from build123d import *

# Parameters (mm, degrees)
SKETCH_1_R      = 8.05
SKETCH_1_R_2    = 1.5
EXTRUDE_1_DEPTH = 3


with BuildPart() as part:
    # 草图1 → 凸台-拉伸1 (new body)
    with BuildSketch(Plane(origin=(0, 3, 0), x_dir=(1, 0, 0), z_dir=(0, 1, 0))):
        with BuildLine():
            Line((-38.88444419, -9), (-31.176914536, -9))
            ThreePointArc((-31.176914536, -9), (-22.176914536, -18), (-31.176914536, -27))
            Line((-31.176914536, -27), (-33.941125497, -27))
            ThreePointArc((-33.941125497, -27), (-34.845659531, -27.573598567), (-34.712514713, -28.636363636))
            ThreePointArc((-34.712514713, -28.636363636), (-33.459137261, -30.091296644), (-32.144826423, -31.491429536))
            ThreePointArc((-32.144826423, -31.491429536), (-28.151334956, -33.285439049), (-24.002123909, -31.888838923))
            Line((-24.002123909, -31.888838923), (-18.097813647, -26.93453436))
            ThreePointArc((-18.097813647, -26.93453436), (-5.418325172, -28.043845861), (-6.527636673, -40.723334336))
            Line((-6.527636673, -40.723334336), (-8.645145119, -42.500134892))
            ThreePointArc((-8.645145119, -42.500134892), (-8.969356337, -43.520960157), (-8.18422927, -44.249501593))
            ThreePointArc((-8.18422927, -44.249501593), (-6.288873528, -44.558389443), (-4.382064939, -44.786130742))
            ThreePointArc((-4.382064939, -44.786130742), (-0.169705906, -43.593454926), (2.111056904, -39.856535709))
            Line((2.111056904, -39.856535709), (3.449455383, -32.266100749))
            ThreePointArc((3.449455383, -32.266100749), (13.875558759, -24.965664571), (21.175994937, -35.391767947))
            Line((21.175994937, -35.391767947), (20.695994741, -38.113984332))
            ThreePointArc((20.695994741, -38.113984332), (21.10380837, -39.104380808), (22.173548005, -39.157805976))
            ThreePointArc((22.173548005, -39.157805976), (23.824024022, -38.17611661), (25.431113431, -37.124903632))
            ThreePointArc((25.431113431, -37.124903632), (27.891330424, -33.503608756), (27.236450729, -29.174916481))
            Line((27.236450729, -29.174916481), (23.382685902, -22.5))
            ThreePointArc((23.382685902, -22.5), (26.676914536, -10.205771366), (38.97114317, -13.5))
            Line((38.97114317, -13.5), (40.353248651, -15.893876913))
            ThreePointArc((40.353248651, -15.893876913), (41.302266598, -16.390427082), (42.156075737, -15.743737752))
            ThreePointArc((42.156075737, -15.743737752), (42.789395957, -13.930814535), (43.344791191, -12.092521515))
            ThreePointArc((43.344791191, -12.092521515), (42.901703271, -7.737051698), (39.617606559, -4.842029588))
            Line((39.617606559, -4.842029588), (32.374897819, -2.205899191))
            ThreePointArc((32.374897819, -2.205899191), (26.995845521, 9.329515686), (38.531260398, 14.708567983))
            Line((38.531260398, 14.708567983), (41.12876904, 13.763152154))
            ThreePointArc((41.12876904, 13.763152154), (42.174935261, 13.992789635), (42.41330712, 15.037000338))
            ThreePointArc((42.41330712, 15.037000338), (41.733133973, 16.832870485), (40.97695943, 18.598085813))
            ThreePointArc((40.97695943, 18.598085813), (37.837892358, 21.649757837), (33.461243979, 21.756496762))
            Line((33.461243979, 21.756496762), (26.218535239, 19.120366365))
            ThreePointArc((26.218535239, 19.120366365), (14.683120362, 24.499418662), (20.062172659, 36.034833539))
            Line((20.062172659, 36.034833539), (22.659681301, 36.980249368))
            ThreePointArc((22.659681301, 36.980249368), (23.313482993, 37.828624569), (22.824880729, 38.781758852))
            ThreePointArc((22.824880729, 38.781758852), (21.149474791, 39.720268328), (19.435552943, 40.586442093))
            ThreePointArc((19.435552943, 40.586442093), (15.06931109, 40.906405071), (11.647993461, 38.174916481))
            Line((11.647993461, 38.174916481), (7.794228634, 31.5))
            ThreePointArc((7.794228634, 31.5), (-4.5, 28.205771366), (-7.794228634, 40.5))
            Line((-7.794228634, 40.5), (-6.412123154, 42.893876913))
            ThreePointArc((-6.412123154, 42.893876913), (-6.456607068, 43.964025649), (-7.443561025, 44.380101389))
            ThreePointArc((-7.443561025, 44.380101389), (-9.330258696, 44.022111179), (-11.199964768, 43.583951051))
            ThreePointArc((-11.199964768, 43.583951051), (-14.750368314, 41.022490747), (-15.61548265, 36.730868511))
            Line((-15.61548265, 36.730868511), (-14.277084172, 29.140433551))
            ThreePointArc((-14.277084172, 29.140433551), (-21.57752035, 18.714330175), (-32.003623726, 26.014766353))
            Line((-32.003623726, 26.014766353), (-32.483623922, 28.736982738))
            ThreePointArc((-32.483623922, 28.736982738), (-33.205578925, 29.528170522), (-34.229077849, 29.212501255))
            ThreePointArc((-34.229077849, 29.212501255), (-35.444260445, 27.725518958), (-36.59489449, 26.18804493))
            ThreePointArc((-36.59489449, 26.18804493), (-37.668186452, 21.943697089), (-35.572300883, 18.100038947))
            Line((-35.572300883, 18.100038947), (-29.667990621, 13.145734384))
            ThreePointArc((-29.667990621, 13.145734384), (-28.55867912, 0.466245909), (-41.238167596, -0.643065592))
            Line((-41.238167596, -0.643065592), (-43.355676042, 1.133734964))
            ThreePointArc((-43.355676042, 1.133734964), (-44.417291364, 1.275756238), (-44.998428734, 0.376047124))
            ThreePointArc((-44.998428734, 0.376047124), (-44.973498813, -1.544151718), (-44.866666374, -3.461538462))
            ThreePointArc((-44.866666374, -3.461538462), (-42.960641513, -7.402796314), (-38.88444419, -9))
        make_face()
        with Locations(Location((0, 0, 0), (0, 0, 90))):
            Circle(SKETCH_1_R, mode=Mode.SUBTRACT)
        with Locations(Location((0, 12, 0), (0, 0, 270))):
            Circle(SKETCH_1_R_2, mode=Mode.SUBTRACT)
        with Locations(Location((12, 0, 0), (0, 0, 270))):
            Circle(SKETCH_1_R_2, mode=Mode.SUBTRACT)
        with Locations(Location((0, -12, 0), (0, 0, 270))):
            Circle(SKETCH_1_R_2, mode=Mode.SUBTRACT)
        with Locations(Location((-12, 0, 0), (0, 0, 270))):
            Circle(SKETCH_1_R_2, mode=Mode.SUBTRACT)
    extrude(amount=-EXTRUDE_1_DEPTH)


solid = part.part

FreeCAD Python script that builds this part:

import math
import FreeCAD as App
import Part
import Sketcher
from FreeCAD import Vector
Q = App.Units.Quantity

doc = App.newDocument("Part")
body = doc.addObject("PartDesign::Body", "Body")

sketch1 = body.newObject("Sketcher::SketchObject", "Sketch")
sketch1.AttachmentSupport = (doc.getObject("XZ_Plane"), [""])
sketch1.MapMode = "FlatFace"
sketch1.AttachmentOffset = App.Placement(Vector(0, 0, -3), App.Rotation())
sketch1.addGeometry(Part.LineSegment(Vector(-38.9, 9, 0), Vector(-31.2, 9, 0)), False)
sketch1.addGeometry(Part.ArcOfCircle(Part.Circle(Vector(-31.2, 18, 0), Vector(0, 0, 1), 9), math.radians(-90), math.radians(90)), False)
sketch1.addGeometry(Part.LineSegment(Vector(-31.2, 27, 0), Vector(-33.9, 27, 0)), False)
sketch1.addGeometry(Part.ArcOfCircle(Part.Circle(Vector(-33.9, 28, 0), Vector(0, 0, 1), 1), math.radians(140), math.radians(270)), False)
sketch1.addGeometry(Part.ArcOfCircle(Part.Circle(Vector(0, 0, 0), Vector(0, 0, 1), 45), math.radians(135.59), math.radians(140.48)), False)
sketch1.addGeometry(Part.ArcOfCircle(Part.Circle(Vector(-27.9, 27.3, 0), Vector(0, 0, 1), 6), math.radians(50), math.radians(136)), False)
sketch1.addGeometry(Part.LineSegment(Vector(-24, 31.9, 0), Vector(-18.1, 26.9, 0)), False)
sketch1.addGeometry(Part.ArcOfCircle(Part.Circle(Vector(-12.3, 33.8, 0), Vector(0, 0, 1), 9), math.radians(-130), math.radians(50)), False)
sketch1.addGeometry(Part.LineSegment(Vector(-6.5, 40.7, 0), Vector(-8.6, 42.5, 0)), False)
sketch1.addGeometry(Part.ArcOfCircle(Part.Circle(Vector(-8, 43.3, 0), Vector(0, 0, 1), 1), math.radians(100), math.radians(230)), False)
sketch1.addGeometry(Part.ArcOfCircle(Part.Circle(Vector(0, 0, 0), Vector(0, 0, 1), 45), math.radians(95.59), math.radians(100.48)), False)
sketch1.addGeometry(Part.ArcOfCircle(Part.Circle(Vector(-3.8, 38.8, 0), Vector(0, 0, 1), 6), math.radians(10), math.radians(96)), False)
sketch1.addGeometry(Part.LineSegment(Vector(2.1, 39.9, 0), Vector(3.4, 32.3, 0)), False)
sketch1.addGeometry(Part.ArcOfCircle(Part.Circle(Vector(12.3, 33.8, 0), Vector(0, 0, 1), 9), math.radians(-170), math.radians(10)), False)
sketch1.addGeometry(Part.LineSegment(Vector(21.2, 35.4, 0), Vector(20.7, 38.1, 0)), False)
sketch1.addGeometry(Part.ArcOfCircle(Part.Circle(Vector(21.7, 38.3, 0), Vector(0, 0, 1), 1), math.radians(60), math.radians(190)), False)
sketch1.addGeometry(Part.ArcOfCircle(Part.Circle(Vector(0, 0, 0), Vector(0, 0, 1), 45), math.radians(55.59), math.radians(60.48)), False)
sketch1.addGeometry(Part.ArcOfCircle(Part.Circle(Vector(22, 32.2, 0), Vector(0, 0, 1), 6), math.radians(-30), math.radians(56)), False)
sketch1.addGeometry(Part.LineSegment(Vector(27.2, 29.2, 0), Vector(23.4, 22.5, 0)), False)
sketch1.addGeometry(Part.ArcOfCircle(Part.Circle(Vector(31.2, 18, 0), Vector(0, 0, 1), 9), math.radians(150), math.radians(330)), False)
sketch1.addGeometry(Part.LineSegment(Vector(39, 13.5, 0), Vector(40.4, 15.9, 0)), False)
sketch1.addGeometry(Part.ArcOfCircle(Part.Circle(Vector(41.2, 15.4, 0), Vector(0, 0, 1), 1), math.radians(20), math.radians(150)), False)
sketch1.addGeometry(Part.ArcOfCircle(Part.Circle(Vector(0, 0, 0), Vector(0, 0, 1), 45), math.radians(15.59), math.radians(20.48)), False)
sketch1.addGeometry(Part.ArcOfCircle(Part.Circle(Vector(37.6, 10.5, 0), Vector(0, 0, 1), 6), math.radians(-70), math.radians(16)), False)
sketch1.addGeometry(Part.LineSegment(Vector(39.6, 4.8, 0), Vector(32.4, 2.2, 0)), False)
sketch1.addGeometry(Part.ArcOfCircle(Part.Circle(Vector(35.5, -6.3, 0), Vector(0, 0, 1), 9), math.radians(110), math.radians(290)), False)
sketch1.addGeometry(Part.LineSegment(Vector(38.5, -14.7, 0), Vector(41.1, -13.8, 0)), False)
sketch1.addGeometry(Part.ArcOfCircle(Part.Circle(Vector(41.5, -14.7, 0), Vector(0, 0, 1), 1), math.radians(-20), math.radians(110)), False)
sketch1.addGeometry(Part.ArcOfCircle(Part.Circle(Vector(0, 0, 0), Vector(0, 0, 1), 45), math.radians(-24.41), math.radians(-19.52)), False)
sketch1.addGeometry(Part.ArcOfCircle(Part.Circle(Vector(35.5, -16.1, 0), Vector(0, 0, 1), 6), math.radians(-110), math.radians(-24)), False)
sketch1.addGeometry(Part.LineSegment(Vector(33.5, -21.8, 0), Vector(26.2, -19.1, 0)), False)
sketch1.addGeometry(Part.ArcOfCircle(Part.Circle(Vector(23.1, -27.6, 0), Vector(0, 0, 1), 9), math.radians(70), math.radians(250)), False)
sketch1.addGeometry(Part.LineSegment(Vector(20.1, -36, 0), Vector(22.7, -37, 0)), False)
sketch1.addGeometry(Part.ArcOfCircle(Part.Circle(Vector(22.3, -37.9, 0), Vector(0, 0, 1), 1), math.radians(-60), math.radians(70)), False)
sketch1.addGeometry(Part.ArcOfCircle(Part.Circle(Vector(0, 0, 0), Vector(0, 0, 1), 45), math.radians(-64.41), math.radians(-59.52)), False)
sketch1.addGeometry(Part.ArcOfCircle(Part.Circle(Vector(16.8, -35.2, 0), Vector(0, 0, 1), 6), math.radians(-150), math.radians(-64)), False)
sketch1.addGeometry(Part.LineSegment(Vector(11.6, -38.2, 0), Vector(7.8, -31.5, 0)), False)
sketch1.addGeometry(Part.ArcOfCircle(Part.Circle(Vector(0, -36, 0), Vector(0, 0, 1), 9), math.radians(30), math.radians(210)), False)
sketch1.addGeometry(Part.LineSegment(Vector(-7.8, -40.5, 0), Vector(-6.4, -42.9, 0)), False)
sketch1.addGeometry(Part.ArcOfCircle(Part.Circle(Vector(-7.3, -43.4, 0), Vector(0, 0, 1), 1), math.radians(-100), math.radians(30)), False)
sketch1.addGeometry(Part.ArcOfCircle(Part.Circle(Vector(0, 0, 0), Vector(0, 0, 1), 45), math.radians(-104.41), math.radians(-99.52)), False)
sketch1.addGeometry(Part.ArcOfCircle(Part.Circle(Vector(-9.7, -37.8, 0), Vector(0, 0, 1), 6), math.radians(170), math.radians(256)), False)
sketch1.addGeometry(Part.LineSegment(Vector(-15.6, -36.7, 0), Vector(-14.3, -29.1, 0)), False)
sketch1.addGeometry(Part.ArcOfCircle(Part.Circle(Vector(-23.1, -27.6, 0), Vector(0, 0, 1), 9), math.radians(-10), math.radians(170)), False)
sketch1.addGeometry(Part.LineSegment(Vector(-32, -26, 0), Vector(-32.5, -28.7, 0)), False)
sketch1.addGeometry(Part.ArcOfCircle(Part.Circle(Vector(-33.5, -28.6, 0), Vector(0, 0, 1), 1), math.radians(-140), math.radians(-10)), False)
sketch1.addGeometry(Part.ArcOfCircle(Part.Circle(Vector(0, 0, 0), Vector(0, 0, 1), 45), math.radians(-144.41), math.radians(-139.52)), False)
sketch1.addGeometry(Part.ArcOfCircle(Part.Circle(Vector(-31.7, -22.7, 0), Vector(0, 0, 1), 6), math.radians(130), math.radians(216)), False)
sketch1.addGeometry(Part.LineSegment(Vector(-35.6, -18.1, 0), Vector(-29.7, -13.1, 0)), False)
sketch1.addGeometry(Part.ArcOfCircle(Part.Circle(Vector(-35.5, -6.3, 0), Vector(0, 0, 1), 9), math.radians(-50), math.radians(130)), False)
sketch1.addGeometry(Part.LineSegment(Vector(-41.2, 0.6, 0), Vector(-43.4, -1.1, 0)), False)
sketch1.addGeometry(Part.ArcOfCircle(Part.Circle(Vector(-44, -0.4, 0), Vector(0, 0, 1), 1), math.radians(-180), math.radians(-50)), False)
sketch1.addGeometry(Part.ArcOfCircle(Part.Circle(Vector(0, 0, 0), Vector(0, 0, 1), 45), math.radians(175.59), math.radians(180.48)), False)
sketch1.addGeometry(Part.ArcOfCircle(Part.Circle(Vector(-38.9, 3, 0), Vector(0, 0, 1), 6), math.radians(90), math.radians(176)), False)
sketch1.addGeometry(Part.Circle(Vector(0, 12, 0), Vector(0, 0, 1), 1.5), False)
sketch1.addGeometry(Part.Circle(Vector(-12, 0, 0), Vector(0, 0, 1), 1.5), False)
sketch1.addGeometry(Part.Circle(Vector(0, 0, 0), Vector(0, 0, 1), 8.1), False)
sketch1.addGeometry(Part.Circle(Vector(12, 0, 0), Vector(0, 0, 1), 1.5), False)
sketch1.addGeometry(Part.Circle(Vector(0, -12, 0), Vector(0, 0, 1), 1.5), False)
sketch1.addConstraint(Sketcher.Constraint("Tangent", 0, 2, 1, 1))
sketch1.addConstraint(Sketcher.Constraint("Tangent", 1, 2, 2, 1))
sketch1.addConstraint(Sketcher.Constraint("Tangent", 2, 2, 3, 2))
sketch1.addConstraint(Sketcher.Constraint("Tangent", 3, 1, 4, 2))
sketch1.addConstraint(Sketcher.Constraint("Tangent", 4, 1, 5, 2))
sketch1.addConstraint(Sketcher.Constraint("Tangent", 5, 1, 6, 1))
sketch1.addConstraint(Sketcher.Constraint("Tangent", 6, 2, 7, 1))
sketch1.addConstraint(Sketcher.Constraint("Tangent", 7, 2, 8, 1))
sketch1.addConstraint(Sketcher.Constraint("Tangent", 8, 2, 9, 2))
sketch1.addConstraint(Sketcher.Constraint("Tangent", 9, 1, 10, 2))
sketch1.addConstraint(Sketcher.Constraint("Tangent", 10, 1, 11, 2))
sketch1.addConstraint(Sketcher.Constraint("Tangent", 11, 1, 12, 1))
sketch1.addConstraint(Sketcher.Constraint("Tangent", 12, 2, 13, 1))
sketch1.addConstraint(Sketcher.Constraint("Tangent", 13, 2, 14, 1))
sketch1.addConstraint(Sketcher.Constraint("Tangent", 14, 2, 15, 2))
sketch1.addConstraint(Sketcher.Constraint("Tangent", 15, 1, 16, 2))
sketch1.addConstraint(Sketcher.Constraint("Tangent", 16, 1, 17, 2))
sketch1.addConstraint(Sketcher.Constraint("Tangent", 17, 1, 18, 1))
sketch1.addConstraint(Sketcher.Constraint("Tangent", 18, 2, 19, 1))
sketch1.addConstraint(Sketcher.Constraint("Tangent", 19, 2, 20, 1))
sketch1.addConstraint(Sketcher.Constraint("Tangent", 20, 2, 21, 2))
sketch1.addConstraint(Sketcher.Constraint("Tangent", 21, 1, 22, 2))
sketch1.addConstraint(Sketcher.Constraint("Tangent", 22, 1, 23, 2))
sketch1.addConstraint(Sketcher.Constraint("Tangent", 23, 1, 24, 1))
sketch1.addConstraint(Sketcher.Constraint("Tangent", 24, 2, 25, 1))
sketch1.addConstraint(Sketcher.Constraint("Tangent", 25, 2, 26, 1))
sketch1.addConstraint(Sketcher.Constraint("Tangent", 26, 2, 27, 2))
sketch1.addConstraint(Sketcher.Constraint("Tangent", 27, 1, 28, 2))
sketch1.addConstraint(Sketcher.Constraint("Tangent", 28, 1, 29, 2))
sketch1.addConstraint(Sketcher.Constraint("Tangent", 29, 1, 30, 1))
sketch1.addConstraint(Sketcher.Constraint("Tangent", 30, 2, 31, 1))
sketch1.addConstraint(Sketcher.Constraint("Tangent", 31, 2, 32, 1))
sketch1.addConstraint(Sketcher.Constraint("Tangent", 32, 2, 33, 2))
sketch1.addConstraint(Sketcher.Constraint("Tangent", 33, 1, 34, 2))
sketch1.addConstraint(Sketcher.Constraint("Tangent", 34, 1, 35, 2))
sketch1.addConstraint(Sketcher.Constraint("Tangent", 35, 1, 36, 1))
sketch1.addConstraint(Sketcher.Constraint("Tangent", 36, 2, 37, 1))
sketch1.addConstraint(Sketcher.Constraint("Tangent", 37, 2, 38, 1))
sketch1.addConstraint(Sketcher.Constraint("Tangent", 38, 2, 39, 2))
sketch1.addConstraint(Sketcher.Constraint("Tangent", 39, 1, 40, 2))
sketch1.addConstraint(Sketcher.Constraint("Tangent", 40, 1, 41, 2))
sketch1.addConstraint(Sketcher.Constraint("Tangent", 41, 1, 42, 1))
sketch1.addConstraint(Sketcher.Constraint("Tangent", 42, 2, 43, 1))
sketch1.addConstraint(Sketcher.Constraint("Tangent", 43, 2, 44, 1))
sketch1.addConstraint(Sketcher.Constraint("Tangent", 44, 2, 45, 2))
sketch1.addConstraint(Sketcher.Constraint("Tangent", 45, 1, 46, 2))
sketch1.addConstraint(Sketcher.Constraint("Tangent", 46, 1, 47, 2))
sketch1.addConstraint(Sketcher.Constraint("Tangent", 47, 1, 48, 1))
sketch1.addConstraint(Sketcher.Constraint("Tangent", 48, 2, 49, 1))
sketch1.addConstraint(Sketcher.Constraint("Tangent", 49, 2, 50, 1))
sketch1.addConstraint(Sketcher.Constraint("Tangent", 50, 2, 51, 2))
sketch1.addConstraint(Sketcher.Constraint("Tangent", 51, 1, 52, 2))
sketch1.addConstraint(Sketcher.Constraint("Tangent", 52, 1, 53, 2))
sketch1.addConstraint(Sketcher.Constraint("Tangent", 53, 1, 0, 1))
sketch1.addConstraint(Sketcher.Constraint("Horizontal", 0))
sketch1.addConstraint(Sketcher.Constraint("Horizontal", 2))
sketch1.addConstraint(Sketcher.Constraint("Coincident", 4, 3, -1, 1))
sketch1.addConstraint(Sketcher.Constraint("Coincident", 10, 3, -1, 1))
sketch1.addConstraint(Sketcher.Constraint("Coincident", 16, 3, -1, 1))
sketch1.addConstraint(Sketcher.Constraint("Coincident", 22, 3, -1, 1))
sketch1.addConstraint(Sketcher.Constraint("Coincident", 28, 3, -1, 1))
sketch1.addConstraint(Sketcher.Constraint("Coincident", 34, 3, -1, 1))
sketch1.addConstraint(Sketcher.Constraint("Coincident", 40, 3, -1, 1))
sketch1.addConstraint(Sketcher.Constraint("Coincident", 46, 3, -1, 1))
sketch1.addConstraint(Sketcher.Constraint("Coincident", 52, 3, -1, 1))
sketch1.addConstraint(Sketcher.Constraint("Coincident", 56, 3, -1, 1))
sketch1.addConstraint(Sketcher.Constraint("Equal", 1, 7))
sketch1.addConstraint(Sketcher.Constraint("Equal", 3, 9))
sketch1.addConstraint(Sketcher.Constraint("Equal", 4, 10))
sketch1.addConstraint(Sketcher.Constraint("Equal", 5, 11))
sketch1.addConstraint(Sketcher.Constraint("Equal", 7, 13))
sketch1.addConstraint(Sketcher.Constraint("Equal", 9, 15))
sketch1.addConstraint(Sketcher.Constraint("Equal", 10, 16))
sketch1.addConstraint(Sketcher.Constraint("Equal", 11, 17))
sketch1.addConstraint(Sketcher.Constraint("Equal", 13, 19))
sketch1.addConstraint(Sketcher.Constraint("Equal", 15, 21))
sketch1.addConstraint(Sketcher.Constraint("Equal", 16, 22))
sketch1.addConstraint(Sketcher.Constraint("Equal", 17, 23))
sketch1.addConstraint(Sketcher.Constraint("Equal", 19, 25))
sketch1.addConstraint(Sketcher.Constraint("Equal", 21, 27))
sketch1.addConstraint(Sketcher.Constraint("Equal", 22, 28))
sketch1.addConstraint(Sketcher.Constraint("Equal", 23, 29))
sketch1.addConstraint(Sketcher.Constraint("Equal", 25, 31))
sketch1.addConstraint(Sketcher.Constraint("Equal", 27, 33))
sketch1.addConstraint(Sketcher.Constraint("Equal", 28, 34))
sketch1.addConstraint(Sketcher.Constraint("Equal", 29, 35))
sketch1.addConstraint(Sketcher.Constraint("Equal", 31, 37))
sketch1.addConstraint(Sketcher.Constraint("Equal", 33, 39))
sketch1.addConstraint(Sketcher.Constraint("Equal", 34, 40))
sketch1.addConstraint(Sketcher.Constraint("Equal", 35, 41))
sketch1.addConstraint(Sketcher.Constraint("Equal", 37, 43))
sketch1.addConstraint(Sketcher.Constraint("Equal", 39, 45))
sketch1.addConstraint(Sketcher.Constraint("Equal", 40, 46))
sketch1.addConstraint(Sketcher.Constraint("Equal", 41, 47))
sketch1.addConstraint(Sketcher.Constraint("Equal", 43, 49))
sketch1.addConstraint(Sketcher.Constraint("Equal", 45, 51))
sketch1.addConstraint(Sketcher.Constraint("Equal", 46, 52))
sketch1.addConstraint(Sketcher.Constraint("Equal", 47, 53))
sketch1.addConstraint(Sketcher.Constraint("Equal", 54, 55))
sketch1.addConstraint(Sketcher.Constraint("Equal", 55, 57))
sketch1.addConstraint(Sketcher.Constraint("Equal", 57, 58))
sketch1.addConstraint(Sketcher.Constraint("Symmetric", 55, 3, 57, 3, -1, 1))
sketch1.addConstraint(Sketcher.Constraint("Symmetric", 54, 3, 58, 3, -1, 1))
sketch1.addConstraint(Sketcher.Constraint("Symmetric", 7, 3, 13, 3, -2))
sketch1.addConstraint(Sketcher.Constraint("Symmetric", 1, 3, 19, 3, -2))
sketch1.addConstraint(Sketcher.Constraint("Symmetric", 31, 3, 43, 3, -2))
sketch1.addConstraint(Sketcher.Constraint("Symmetric", 25, 3, 49, 3, -2))
sketch1.addConstraint(Sketcher.Constraint("PointOnObject", 37, 3, -2))
sketch1.addConstraint(Sketcher.Constraint("PointOnObject", 54, 3, -2))
sketch1.addConstraint(Sketcher.Constraint("PointOnObject", 55, 3, -1))
sketch1.addConstraint(Sketcher.Constraint("Parallel", 6, 8))
sketch1.addConstraint(Sketcher.Constraint("Parallel", 12, 14))
sketch1.addConstraint(Sketcher.Constraint("Parallel", 18, 20))
sketch1.addConstraint(Sketcher.Constraint("Parallel", 24, 26))
sketch1.addConstraint(Sketcher.Constraint("Parallel", 30, 32))
sketch1.addConstraint(Sketcher.Constraint("Parallel", 36, 38))
sketch1.addConstraint(Sketcher.Constraint("Parallel", 42, 44))
sketch1.addConstraint(Sketcher.Constraint("Parallel", 48, 50))
sketch1.addConstraint(Sketcher.Constraint("Equal", 6, 12))
sketch1.addConstraint(Sketcher.Constraint("Equal", 12, 18))
sketch1.addConstraint(Sketcher.Constraint("Equal", 14, 20))
sketch1.addConstraint(Sketcher.Constraint("Equal", 18, 24))
sketch1.addConstraint(Sketcher.Constraint("Equal", 20, 26))
sketch1.addConstraint(Sketcher.Constraint("Equal", 24, 30))
sketch1.addConstraint(Sketcher.Constraint("Equal", 26, 32))
sketch1.addConstraint(Sketcher.Constraint("Equal", 30, 36))
sketch1.addConstraint(Sketcher.Constraint("Equal", 32, 38))
sketch1.addConstraint(Sketcher.Constraint("Equal", 36, 42))
sketch1.addConstraint(Sketcher.Constraint("Equal", 42, 48))
sketch1.addConstraint(Sketcher.Constraint("Diameter", 54, Q("3 mm")))
sketch1.addConstraint(Sketcher.Constraint("Radius", 1, Q("9 mm")))
sketch1.addConstraint(Sketcher.Constraint("Radius", 3, Q("1 mm")))
sketch1.addConstraint(Sketcher.Constraint("Radius", 4, Q("45 mm")))
sketch1.addConstraint(Sketcher.Constraint("Radius", 5, Q("6 mm")))
sketch1.addConstraint(Sketcher.Constraint("Diameter", 56, Q("16.1 mm")))
sketch1.addConstraint(Sketcher.Constraint("Angle", 6, Q("-40 deg")))
sketch1.addConstraint(Sketcher.Constraint("Angle", 12, Q("-80 deg")))
sketch1.addConstraint(Sketcher.Constraint("Angle", 18, Q("-120 deg")))
sketch1.addConstraint(Sketcher.Constraint("Angle", 24, Q("-160 deg")))
sketch1.addConstraint(Sketcher.Constraint("Angle", 30, Q("160 deg")))
sketch1.addConstraint(Sketcher.Constraint("DistanceY", -1, 1, 1, 3, Q("18 mm")))
sketch1.addConstraint(Sketcher.Constraint("DistanceY", -1, 1, 54, 3, Q("12 mm")))
sketch1.addConstraint(Sketcher.Constraint("DistanceX", 55, 3, -1, 1, Q("12 mm")))
pad1 = body.newObject("PartDesign::Pad", "Pad")
pad1.Profile = sketch1
pad1.Length = 3

doc.recompute()
